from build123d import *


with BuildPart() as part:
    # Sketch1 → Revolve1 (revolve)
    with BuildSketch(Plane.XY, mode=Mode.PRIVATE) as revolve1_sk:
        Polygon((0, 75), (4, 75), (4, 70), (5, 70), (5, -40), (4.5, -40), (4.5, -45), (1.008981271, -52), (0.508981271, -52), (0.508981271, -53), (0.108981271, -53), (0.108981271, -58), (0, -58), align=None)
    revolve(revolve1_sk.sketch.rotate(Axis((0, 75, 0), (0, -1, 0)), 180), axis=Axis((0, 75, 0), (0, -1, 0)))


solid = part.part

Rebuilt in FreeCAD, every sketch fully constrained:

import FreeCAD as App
import Part
import Sketcher

doc = App.newDocument("Part")
body = doc.addObject("PartDesign::Body", "Body")

# Sketch on XY plane
sketch1 = body.newObject("Sketcher::SketchObject", "Sketch")
sketch1.AttachmentSupport = (doc.getObject("XY_Plane"), [""])
sketch1.MapMode = "FlatFace"
sketch1.addGeometry(Part.LineSegment(App.Vector(4, 75, 0), App.Vector(0, 75, 0)), False)
sketch1.addGeometry(Part.LineSegment(App.Vector(0, 75, 0), App.Vector(0, -58, 0)), False)
sketch1.addGeometry(Part.LineSegment(App.Vector(0, -58, 0), App.Vector(0.11, -58, 0)), False)
sketch1.addGeometry(Part.LineSegment(App.Vector(0.11, -58, 0), App.Vector(0.11, -53, 0)), False)
sketch1.addGeometry(Part.LineSegment(App.Vector(0.11, -53, 0), App.Vector(0.51, -53, 0)), False)
sketch1.addGeometry(Part.LineSegment(App.Vector(0.51, -53, 0), App.Vector(0.51, -52, 0)), False)
sketch1.addGeometry(Part.LineSegment(App.Vector(0.51, -52, 0), App.Vector(1.01, -52, 0)), False)
sketch1.addGeometry(Part.LineSegment(App.Vector(1.01, -52, 0), App.Vector(4.5, -45, 0)), False)
sketch1.addGeometry(Part.LineSegment(App.Vector(4.5, -45, 0), App.Vector(4.5, -40, 0)), False)
sketch1.addGeometry(Part.LineSegment(App.Vector(4.5, -40, 0), App.Vector(5, -40, 0)), False)
sketch1.addGeometry(Part.LineSegment(App.Vector(5, -40, 0), App.Vector(5, 70, 0)), False)
sketch1.addGeometry(Part.LineSegment(App.Vector(5, 70, 0), App.Vector(4, 70, 0)), False)
sketch1.addGeometry(Part.LineSegment(App.Vector(4, 70, 0), App.Vector(4, 75, 0)), False)
sketch1.addConstraint(Sketcher.Constraint("Coincident", 0, 2, 1, 1))
sketch1.addConstraint(Sketcher.Constraint("Coincident", 1, 2, 2, 1))
sketch1.addConstraint(Sketcher.Constraint("Coincident", 2, 2, 3, 1))
sketch1.addConstraint(Sketcher.Constraint("Coincident", 3, 2, 4, 1))
sketch1.addConstraint(Sketcher.Constraint("Coincident", 4, 2, 5, 1))
sketch1.addConstraint(Sketcher.Constraint("Coincident", 5, 2, 6, 1))
sketch1.addConstraint(Sketcher.Constraint("Coincident", 6, 2, 7, 1))
sketch1.addConstraint(Sketcher.Constraint("Coincident", 7, 2, 8, 1))
sketch1.addConstraint(Sketcher.Constraint("Coincident", 8, 2, 9, 1))
sketch1.addConstraint(Sketcher.Constraint("Coincident", 9, 2, 10, 1))
sketch1.addConstraint(Sketcher.Constraint("Coincident", 10, 2, 11, 1))
sketch1.addConstraint(Sketcher.Constraint("Coincident", 11, 2, 12, 1))
sketch1.addConstraint(Sketcher.Constraint("Coincident", 12, 2, 0, 1))
sketch1.addConstraint(Sketcher.Constraint("Horizontal", 0))
sketch1.addConstraint(Sketcher.Constraint("Vertical", 1))
sketch1.addConstraint(Sketcher.Constraint("Horizontal", 2))
sketch1.addConstraint(Sketcher.Constraint("Vertical", 3))
sketch1.addConstraint(Sketcher.Constraint("Horizontal", 4))
sketch1.addConstraint(Sketcher.Constraint("Vertical", 5))
sketch1.addConstraint(Sketcher.Constraint("Horizontal", 6))
sketch1.addConstraint(Sketcher.Constraint("Vertical", 8))
sketch1.addConstraint(Sketcher.Constraint("Horizontal", 9))
sketch1.addConstraint(Sketcher.Constraint("Vertical", 10))
sketch1.addConstraint(Sketcher.Constraint("Horizontal", 11))
sketch1.addConstraint(Sketcher.Constraint("Vertical", 12))
sketch1.addConstraint(Sketcher.Constraint("PointOnObject", 0, 2, -2))
sketch1.addConstraint(Sketcher.Constraint("Equal", 6, 9))
sketch1.addConstraint(Sketcher.Constraint("Equal", 11, 5))
sketch1.addConstraint(Sketcher.Constraint("Equal", 3, 8))
sketch1.addConstraint(Sketcher.Constraint("Equal", 8, 12))
sketch1.addConstraint(Sketcher.Constraint("DistanceX", 0, 2, 0, 1, 4.0))
sketch1.addConstraint(Sketcher.Constraint("DistanceX", 11, 2, 11, 1, 1.0))
sketch1.addConstraint(Sketcher.Constraint("DistanceY", 1, 2, 1, 1, 133.0))
sketch1.addConstraint(Sketcher.Constraint("DistanceY", 3, 1, 3, 2, 5.0))
sketch1.addConstraint(Sketcher.Constraint("DistanceY", 10, 1, 10, 2, 110.0))
sketch1.addConstraint(Sketcher.Constraint("DistanceX", 4, 1, 4, 2, 0.4))
sketch1.addConstraint(Sketcher.Constraint("DistanceX", 6, 1, 6, 2, 0.5))
sketch1.addConstraint(Sketcher.Constraint("DistanceY", -1, 1, 0, 2, 75.0))
sketch1.addConstraint(Sketcher.Constraint("DistanceX", 2, 1, 2, 2, 0.108981))
revolution = body.newObject("PartDesign::Revolution", "Revolution")
revolution.Profile = sketch1
revolution.ReferenceAxis = (sketch1, ["V_Axis"])
revolution.Angle = 360

doc.recompute()
